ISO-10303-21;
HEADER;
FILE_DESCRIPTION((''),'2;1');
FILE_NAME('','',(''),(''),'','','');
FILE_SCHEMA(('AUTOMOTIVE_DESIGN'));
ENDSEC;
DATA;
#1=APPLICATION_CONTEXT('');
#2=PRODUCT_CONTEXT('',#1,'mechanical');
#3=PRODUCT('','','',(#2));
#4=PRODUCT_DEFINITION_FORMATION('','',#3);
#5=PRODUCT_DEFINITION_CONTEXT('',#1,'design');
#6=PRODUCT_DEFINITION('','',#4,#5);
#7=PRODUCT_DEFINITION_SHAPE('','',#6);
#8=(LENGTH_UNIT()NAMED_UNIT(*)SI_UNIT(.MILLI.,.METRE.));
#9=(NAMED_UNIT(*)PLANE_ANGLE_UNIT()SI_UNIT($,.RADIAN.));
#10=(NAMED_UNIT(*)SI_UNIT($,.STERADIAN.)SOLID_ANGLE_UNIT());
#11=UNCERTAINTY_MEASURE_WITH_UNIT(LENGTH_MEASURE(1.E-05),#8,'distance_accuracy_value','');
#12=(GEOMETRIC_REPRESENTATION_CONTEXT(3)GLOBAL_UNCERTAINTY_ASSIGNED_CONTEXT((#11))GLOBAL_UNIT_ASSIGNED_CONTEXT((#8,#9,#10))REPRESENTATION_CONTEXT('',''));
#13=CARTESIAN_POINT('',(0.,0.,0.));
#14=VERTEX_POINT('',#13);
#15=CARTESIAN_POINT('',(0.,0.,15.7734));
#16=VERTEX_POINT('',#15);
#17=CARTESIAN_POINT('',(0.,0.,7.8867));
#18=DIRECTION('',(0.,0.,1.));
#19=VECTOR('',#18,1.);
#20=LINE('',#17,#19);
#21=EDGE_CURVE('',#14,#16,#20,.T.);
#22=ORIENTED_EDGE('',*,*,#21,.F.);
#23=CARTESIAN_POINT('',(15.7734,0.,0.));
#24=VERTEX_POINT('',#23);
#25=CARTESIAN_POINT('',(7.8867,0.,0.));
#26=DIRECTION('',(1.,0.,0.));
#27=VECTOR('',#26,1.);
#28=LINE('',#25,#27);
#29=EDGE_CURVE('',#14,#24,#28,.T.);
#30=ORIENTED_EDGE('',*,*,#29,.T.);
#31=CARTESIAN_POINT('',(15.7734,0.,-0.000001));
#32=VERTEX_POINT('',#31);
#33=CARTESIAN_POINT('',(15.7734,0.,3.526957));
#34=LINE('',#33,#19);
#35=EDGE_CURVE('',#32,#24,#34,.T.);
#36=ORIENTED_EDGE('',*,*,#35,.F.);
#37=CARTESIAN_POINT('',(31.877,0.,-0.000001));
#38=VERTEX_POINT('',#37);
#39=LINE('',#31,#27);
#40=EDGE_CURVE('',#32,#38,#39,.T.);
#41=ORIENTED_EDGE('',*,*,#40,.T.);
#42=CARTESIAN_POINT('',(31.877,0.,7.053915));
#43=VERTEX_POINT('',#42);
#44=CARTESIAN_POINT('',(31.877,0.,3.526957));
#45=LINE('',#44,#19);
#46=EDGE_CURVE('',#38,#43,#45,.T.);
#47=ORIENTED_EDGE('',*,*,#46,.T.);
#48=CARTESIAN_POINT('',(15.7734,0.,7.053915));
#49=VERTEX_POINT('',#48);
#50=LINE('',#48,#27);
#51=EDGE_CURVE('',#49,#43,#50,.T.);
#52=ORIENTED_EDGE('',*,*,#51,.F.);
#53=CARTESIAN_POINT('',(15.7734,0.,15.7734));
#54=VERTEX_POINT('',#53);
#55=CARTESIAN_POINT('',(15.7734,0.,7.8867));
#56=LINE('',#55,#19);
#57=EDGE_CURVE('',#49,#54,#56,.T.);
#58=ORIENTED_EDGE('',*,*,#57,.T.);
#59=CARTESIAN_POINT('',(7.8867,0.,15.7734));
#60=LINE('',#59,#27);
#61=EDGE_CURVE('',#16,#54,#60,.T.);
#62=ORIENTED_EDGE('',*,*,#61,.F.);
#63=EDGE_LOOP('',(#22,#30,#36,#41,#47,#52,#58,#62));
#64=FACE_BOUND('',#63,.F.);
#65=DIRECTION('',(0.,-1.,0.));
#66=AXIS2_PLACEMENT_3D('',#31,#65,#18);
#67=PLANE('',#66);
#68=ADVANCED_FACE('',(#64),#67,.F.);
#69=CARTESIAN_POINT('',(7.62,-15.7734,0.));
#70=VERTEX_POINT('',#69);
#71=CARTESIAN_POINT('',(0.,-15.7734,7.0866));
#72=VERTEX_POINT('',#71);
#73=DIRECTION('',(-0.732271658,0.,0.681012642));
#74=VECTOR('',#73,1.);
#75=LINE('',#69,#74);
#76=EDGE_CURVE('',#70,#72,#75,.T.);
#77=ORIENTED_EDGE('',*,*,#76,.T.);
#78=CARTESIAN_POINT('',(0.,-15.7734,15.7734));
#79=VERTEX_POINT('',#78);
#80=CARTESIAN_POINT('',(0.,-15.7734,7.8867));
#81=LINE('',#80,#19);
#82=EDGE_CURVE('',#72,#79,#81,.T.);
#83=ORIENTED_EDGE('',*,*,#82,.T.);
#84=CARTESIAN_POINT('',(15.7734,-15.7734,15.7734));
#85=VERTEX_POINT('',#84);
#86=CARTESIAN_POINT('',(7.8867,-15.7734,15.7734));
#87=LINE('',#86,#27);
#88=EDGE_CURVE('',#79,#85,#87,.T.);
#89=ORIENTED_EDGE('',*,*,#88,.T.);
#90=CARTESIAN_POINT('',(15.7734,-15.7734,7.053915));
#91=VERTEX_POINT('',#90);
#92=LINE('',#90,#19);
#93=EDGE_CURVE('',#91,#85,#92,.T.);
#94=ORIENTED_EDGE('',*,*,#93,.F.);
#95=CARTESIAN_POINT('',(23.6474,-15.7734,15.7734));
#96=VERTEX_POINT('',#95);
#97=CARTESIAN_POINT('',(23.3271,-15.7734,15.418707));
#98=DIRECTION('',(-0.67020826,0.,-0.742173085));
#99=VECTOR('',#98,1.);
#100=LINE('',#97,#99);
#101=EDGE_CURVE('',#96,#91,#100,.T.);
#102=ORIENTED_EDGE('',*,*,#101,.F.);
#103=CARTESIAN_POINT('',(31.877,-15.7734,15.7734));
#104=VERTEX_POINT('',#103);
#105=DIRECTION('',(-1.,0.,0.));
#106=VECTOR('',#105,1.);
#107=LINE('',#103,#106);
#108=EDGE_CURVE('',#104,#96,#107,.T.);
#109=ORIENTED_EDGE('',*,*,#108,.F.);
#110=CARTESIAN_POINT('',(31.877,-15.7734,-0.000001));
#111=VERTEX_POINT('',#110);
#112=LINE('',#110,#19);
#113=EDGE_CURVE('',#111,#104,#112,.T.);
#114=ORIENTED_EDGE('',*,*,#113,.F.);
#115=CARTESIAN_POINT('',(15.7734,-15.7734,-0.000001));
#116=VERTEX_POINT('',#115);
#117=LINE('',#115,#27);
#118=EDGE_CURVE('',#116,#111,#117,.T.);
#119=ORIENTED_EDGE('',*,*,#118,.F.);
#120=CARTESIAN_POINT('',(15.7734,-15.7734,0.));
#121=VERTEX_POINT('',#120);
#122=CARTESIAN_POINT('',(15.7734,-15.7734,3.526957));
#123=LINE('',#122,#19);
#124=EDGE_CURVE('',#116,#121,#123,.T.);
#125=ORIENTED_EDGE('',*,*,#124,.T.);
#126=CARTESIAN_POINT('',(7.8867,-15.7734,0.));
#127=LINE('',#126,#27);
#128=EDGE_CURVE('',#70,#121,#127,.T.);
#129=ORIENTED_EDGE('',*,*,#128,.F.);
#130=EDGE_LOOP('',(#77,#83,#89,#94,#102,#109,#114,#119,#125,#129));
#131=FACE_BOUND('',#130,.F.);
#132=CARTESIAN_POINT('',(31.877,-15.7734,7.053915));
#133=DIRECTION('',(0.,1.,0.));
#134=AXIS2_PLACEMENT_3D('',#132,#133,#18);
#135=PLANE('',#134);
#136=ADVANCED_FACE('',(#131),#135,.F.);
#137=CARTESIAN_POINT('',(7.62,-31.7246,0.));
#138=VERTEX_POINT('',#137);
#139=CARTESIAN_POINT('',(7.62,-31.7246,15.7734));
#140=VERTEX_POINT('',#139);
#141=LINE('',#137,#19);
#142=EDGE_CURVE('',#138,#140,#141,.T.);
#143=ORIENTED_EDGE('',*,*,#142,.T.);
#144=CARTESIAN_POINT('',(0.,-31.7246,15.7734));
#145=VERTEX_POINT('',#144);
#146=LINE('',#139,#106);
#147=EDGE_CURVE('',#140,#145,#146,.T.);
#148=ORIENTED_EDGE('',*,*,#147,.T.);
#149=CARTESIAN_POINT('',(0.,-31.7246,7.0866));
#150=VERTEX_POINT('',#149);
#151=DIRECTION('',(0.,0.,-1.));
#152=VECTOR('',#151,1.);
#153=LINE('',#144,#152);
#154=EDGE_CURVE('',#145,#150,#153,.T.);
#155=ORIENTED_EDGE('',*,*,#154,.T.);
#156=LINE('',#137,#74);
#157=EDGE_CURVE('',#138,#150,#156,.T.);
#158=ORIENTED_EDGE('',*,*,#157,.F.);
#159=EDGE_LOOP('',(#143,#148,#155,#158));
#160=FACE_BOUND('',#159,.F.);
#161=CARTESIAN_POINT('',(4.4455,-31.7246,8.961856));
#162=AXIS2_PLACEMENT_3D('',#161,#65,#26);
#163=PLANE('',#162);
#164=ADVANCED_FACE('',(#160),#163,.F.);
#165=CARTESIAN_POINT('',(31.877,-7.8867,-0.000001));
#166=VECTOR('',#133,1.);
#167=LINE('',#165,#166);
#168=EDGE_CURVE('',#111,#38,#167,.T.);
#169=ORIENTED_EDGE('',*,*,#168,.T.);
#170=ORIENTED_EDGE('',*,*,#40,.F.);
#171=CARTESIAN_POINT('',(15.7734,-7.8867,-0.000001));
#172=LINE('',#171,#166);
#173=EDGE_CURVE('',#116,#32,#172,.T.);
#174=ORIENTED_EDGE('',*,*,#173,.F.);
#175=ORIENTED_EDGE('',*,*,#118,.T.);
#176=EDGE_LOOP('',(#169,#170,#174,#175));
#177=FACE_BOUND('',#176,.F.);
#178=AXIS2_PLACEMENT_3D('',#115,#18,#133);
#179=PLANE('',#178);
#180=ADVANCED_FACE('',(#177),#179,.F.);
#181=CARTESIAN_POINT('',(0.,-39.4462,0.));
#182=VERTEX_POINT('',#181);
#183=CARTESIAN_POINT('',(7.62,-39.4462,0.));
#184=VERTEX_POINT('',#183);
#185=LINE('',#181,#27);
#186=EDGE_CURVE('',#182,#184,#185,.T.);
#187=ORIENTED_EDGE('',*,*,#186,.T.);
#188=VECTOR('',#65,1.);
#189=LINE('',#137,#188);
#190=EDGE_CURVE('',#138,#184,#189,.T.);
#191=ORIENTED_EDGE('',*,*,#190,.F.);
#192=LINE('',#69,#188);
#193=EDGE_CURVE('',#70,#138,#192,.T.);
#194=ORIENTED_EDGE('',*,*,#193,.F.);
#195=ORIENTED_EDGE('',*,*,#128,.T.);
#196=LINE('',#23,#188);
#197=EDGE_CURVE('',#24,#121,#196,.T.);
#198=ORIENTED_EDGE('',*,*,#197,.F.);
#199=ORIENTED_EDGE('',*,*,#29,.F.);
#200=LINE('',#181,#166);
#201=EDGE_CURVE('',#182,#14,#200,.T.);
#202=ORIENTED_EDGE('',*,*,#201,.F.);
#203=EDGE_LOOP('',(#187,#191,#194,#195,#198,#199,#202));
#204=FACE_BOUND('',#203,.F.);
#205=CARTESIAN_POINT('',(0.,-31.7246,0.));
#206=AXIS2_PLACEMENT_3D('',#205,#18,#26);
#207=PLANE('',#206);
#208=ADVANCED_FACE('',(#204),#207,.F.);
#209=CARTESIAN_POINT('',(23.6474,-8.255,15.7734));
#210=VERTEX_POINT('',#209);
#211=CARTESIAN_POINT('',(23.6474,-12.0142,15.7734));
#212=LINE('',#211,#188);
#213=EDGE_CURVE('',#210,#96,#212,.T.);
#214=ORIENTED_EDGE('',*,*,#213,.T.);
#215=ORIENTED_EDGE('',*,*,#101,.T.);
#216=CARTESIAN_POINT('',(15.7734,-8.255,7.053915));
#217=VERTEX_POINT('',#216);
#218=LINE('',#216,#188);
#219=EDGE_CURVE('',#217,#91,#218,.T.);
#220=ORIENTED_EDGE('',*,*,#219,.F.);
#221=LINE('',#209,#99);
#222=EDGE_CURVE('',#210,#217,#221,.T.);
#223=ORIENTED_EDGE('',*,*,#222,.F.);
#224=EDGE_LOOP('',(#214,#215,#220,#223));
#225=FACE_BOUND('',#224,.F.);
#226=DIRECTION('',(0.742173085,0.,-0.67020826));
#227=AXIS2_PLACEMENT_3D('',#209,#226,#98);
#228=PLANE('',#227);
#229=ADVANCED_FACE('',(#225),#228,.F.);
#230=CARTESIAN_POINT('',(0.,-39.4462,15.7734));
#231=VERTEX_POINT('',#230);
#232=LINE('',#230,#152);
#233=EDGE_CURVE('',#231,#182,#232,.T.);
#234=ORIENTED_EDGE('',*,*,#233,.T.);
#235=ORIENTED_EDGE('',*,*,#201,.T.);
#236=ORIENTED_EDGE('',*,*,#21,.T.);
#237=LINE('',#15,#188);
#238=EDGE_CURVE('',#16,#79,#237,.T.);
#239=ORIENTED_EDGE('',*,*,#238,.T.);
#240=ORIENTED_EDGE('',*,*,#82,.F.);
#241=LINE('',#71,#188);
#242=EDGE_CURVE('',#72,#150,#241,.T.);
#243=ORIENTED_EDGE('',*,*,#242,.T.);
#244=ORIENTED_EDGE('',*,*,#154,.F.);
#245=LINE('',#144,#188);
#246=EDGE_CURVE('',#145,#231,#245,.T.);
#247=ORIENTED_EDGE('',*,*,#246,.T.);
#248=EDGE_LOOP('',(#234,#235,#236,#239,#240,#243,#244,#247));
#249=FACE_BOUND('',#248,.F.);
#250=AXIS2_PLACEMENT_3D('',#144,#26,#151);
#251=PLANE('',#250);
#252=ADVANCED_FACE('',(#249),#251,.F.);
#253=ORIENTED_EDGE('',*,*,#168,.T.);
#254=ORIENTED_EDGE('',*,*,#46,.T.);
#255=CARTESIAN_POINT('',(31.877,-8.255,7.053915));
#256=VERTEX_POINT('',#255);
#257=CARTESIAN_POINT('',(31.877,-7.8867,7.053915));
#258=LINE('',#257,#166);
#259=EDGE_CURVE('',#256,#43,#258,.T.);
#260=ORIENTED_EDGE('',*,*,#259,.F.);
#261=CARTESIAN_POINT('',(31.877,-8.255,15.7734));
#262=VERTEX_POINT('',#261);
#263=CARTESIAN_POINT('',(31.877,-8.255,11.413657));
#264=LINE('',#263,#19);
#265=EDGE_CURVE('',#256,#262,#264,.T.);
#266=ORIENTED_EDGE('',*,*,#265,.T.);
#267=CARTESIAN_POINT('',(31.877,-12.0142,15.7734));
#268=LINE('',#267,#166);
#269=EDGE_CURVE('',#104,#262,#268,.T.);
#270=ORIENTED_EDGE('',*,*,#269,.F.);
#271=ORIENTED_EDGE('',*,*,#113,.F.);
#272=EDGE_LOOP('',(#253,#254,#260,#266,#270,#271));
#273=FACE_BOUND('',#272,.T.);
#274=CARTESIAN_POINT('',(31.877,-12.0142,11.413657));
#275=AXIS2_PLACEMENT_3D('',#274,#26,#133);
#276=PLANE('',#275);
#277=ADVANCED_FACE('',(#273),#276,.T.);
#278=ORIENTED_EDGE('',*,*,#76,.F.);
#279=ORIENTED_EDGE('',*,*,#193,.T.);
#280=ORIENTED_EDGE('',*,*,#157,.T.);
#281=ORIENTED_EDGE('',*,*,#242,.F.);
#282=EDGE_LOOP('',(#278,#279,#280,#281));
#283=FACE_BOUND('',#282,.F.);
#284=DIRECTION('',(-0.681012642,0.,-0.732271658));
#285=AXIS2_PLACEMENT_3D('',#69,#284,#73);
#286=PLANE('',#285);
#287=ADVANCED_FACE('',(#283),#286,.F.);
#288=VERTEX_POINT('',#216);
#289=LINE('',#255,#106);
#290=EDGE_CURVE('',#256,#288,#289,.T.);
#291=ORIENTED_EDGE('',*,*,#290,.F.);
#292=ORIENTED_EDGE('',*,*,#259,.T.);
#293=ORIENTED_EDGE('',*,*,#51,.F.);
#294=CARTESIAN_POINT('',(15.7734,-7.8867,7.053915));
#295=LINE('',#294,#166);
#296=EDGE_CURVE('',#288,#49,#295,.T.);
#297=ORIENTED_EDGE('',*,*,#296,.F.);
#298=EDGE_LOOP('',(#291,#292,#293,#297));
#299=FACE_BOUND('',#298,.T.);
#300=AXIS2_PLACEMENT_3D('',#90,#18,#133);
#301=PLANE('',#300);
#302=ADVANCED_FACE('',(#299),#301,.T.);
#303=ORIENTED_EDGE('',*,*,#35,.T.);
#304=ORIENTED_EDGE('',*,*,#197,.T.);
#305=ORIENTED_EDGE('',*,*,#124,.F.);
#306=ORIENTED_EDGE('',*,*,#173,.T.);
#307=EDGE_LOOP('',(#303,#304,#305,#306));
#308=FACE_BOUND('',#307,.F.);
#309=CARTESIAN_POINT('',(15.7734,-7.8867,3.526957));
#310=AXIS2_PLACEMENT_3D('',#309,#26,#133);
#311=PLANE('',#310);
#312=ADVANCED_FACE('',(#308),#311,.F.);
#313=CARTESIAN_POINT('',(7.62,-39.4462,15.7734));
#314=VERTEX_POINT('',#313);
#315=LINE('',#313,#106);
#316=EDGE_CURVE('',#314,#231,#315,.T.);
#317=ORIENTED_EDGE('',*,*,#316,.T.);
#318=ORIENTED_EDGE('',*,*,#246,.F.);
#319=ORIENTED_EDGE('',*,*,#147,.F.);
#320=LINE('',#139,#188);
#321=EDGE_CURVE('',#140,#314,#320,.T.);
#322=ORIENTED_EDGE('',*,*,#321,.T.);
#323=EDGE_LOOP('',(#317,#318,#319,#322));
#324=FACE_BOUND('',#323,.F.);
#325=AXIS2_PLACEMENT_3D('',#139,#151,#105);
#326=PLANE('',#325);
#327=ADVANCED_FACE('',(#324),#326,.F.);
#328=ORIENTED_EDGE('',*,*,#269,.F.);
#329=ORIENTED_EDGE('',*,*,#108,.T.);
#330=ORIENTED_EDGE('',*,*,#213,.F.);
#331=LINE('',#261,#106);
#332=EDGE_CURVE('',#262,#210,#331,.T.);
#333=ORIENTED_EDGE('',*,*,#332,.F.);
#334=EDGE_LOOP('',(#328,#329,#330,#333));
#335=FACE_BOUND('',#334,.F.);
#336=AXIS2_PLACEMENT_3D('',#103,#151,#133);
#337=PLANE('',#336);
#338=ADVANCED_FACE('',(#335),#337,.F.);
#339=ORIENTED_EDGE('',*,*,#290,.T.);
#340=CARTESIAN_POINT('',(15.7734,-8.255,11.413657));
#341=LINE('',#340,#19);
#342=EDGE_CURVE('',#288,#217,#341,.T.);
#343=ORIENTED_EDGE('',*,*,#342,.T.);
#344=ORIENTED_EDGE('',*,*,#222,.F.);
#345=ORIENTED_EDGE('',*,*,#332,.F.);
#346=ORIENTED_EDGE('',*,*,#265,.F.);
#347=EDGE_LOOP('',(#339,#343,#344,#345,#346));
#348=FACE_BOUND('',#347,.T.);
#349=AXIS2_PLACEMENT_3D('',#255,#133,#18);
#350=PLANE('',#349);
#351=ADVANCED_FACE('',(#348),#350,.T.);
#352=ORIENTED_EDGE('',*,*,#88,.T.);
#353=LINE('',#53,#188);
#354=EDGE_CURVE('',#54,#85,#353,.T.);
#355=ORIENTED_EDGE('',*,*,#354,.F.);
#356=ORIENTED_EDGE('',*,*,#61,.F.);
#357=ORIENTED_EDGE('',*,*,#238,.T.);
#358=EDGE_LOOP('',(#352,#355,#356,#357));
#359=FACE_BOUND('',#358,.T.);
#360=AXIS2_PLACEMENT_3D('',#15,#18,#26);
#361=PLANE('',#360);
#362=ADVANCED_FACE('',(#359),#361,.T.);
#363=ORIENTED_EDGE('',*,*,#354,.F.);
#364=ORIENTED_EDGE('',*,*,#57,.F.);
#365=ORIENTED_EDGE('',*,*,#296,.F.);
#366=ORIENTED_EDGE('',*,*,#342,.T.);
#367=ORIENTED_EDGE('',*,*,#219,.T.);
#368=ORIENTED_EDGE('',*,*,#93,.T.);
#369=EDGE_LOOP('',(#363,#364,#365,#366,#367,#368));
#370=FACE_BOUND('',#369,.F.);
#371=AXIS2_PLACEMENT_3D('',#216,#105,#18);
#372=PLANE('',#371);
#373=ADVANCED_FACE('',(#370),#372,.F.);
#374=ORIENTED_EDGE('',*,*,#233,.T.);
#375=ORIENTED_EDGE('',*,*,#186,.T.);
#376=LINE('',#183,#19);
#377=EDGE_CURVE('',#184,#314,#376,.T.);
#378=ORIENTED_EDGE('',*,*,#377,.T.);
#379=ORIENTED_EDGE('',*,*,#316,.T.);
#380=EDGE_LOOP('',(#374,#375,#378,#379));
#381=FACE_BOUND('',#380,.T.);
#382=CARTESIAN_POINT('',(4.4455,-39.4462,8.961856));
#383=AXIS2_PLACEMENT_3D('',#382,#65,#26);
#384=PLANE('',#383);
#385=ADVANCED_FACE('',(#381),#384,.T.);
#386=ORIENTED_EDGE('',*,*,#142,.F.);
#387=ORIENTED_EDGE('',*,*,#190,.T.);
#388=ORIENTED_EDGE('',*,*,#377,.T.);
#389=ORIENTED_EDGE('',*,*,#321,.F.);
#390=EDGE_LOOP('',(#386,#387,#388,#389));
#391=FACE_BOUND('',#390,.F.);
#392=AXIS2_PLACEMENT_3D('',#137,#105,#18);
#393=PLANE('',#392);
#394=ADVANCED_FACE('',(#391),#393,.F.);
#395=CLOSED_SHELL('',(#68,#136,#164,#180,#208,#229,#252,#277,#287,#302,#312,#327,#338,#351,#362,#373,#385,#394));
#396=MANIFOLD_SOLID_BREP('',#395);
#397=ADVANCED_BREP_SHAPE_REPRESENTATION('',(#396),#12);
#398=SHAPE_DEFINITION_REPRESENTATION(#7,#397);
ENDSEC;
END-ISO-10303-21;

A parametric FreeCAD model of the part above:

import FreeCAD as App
import Part
import Sketcher
from FreeCAD import Vector
Q = App.Units.Quantity

doc = App.newDocument("Part")
body = doc.addObject("PartDesign::Body", "Body")

# Sketch on XZ plane
sketch1 = body.newObject("Sketcher::SketchObject", "Sketch")
sketch1.AttachmentSupport = (doc.getObject("XZ_Plane"), [""])
sketch1.MapMode = "FlatFace"
sketch1.addGeometry([
    Part.LineSegment(Vector(0, 15.7734, 0), Vector(0, 0, 0)),
    Part.LineSegment(Vector(0, 0, 0), Vector(15.7734, 0, 0)),
    Part.LineSegment(Vector(15.7734, 0, 0), Vector(15.7734, 15.7734, 0)),
    Part.LineSegment(Vector(15.7734, 15.7734, 0), Vector(0, 15.7734, 0)),
], False)
sketch1.addConstraint([
    Sketcher.Constraint("Coincident", 0, 2, 1, 1),
    Sketcher.Constraint("Coincident", 1, 2, 2, 1),
    Sketcher.Constraint("Coincident", 2, 2, 3, 1),
    Sketcher.Constraint("Coincident", 3, 2, 0, 1),
    Sketcher.Constraint("Vertical", 0),
    Sketcher.Constraint("Horizontal", 1),
    Sketcher.Constraint("Vertical", 2),
    Sketcher.Constraint("Horizontal", 3),
    Sketcher.Constraint("Coincident", 0, 2, -1, 1),
    Sketcher.Constraint("Equal", 3, 0),
    Sketcher.Constraint("DistanceX", 1, 1, 1, 2, Q("0.621 in")),
])
pad1 = body.newObject("PartDesign::Pad", "Pad")
pad1.Profile = sketch1
pad1.Length = Q("0.621 in")

# Sketch on XZ plane
sketch2 = body.newObject("Sketcher::SketchObject", "Sketch001")
sketch2.AttachmentSupport = (doc.getObject("XZ_Plane"), [""])
sketch2.MapMode = "FlatFace"
sketch2.AttachmentOffset = App.Placement(Vector(0, 0, 0.621 * 25.4), App.Rotation())
sketch2.addGeometry([
    Part.LineSegment(Vector(0, 7.0866, 0), Vector(0, 0, 0)),
    Part.LineSegment(Vector(0, 0, 0), Vector(7.62, 0, 0)),
    Part.LineSegment(Vector(7.62, 0, 0), Vector(0, 7.0866, 0)),
], False)
sketch2.addConstraint([
    Sketcher.Constraint("Coincident", 0, 2, 1, 1),
    Sketcher.Constraint("Coincident", 1, 2, 2, 1),
    Sketcher.Constraint("Coincident", 2, 2, 0, 1),
    Sketcher.Constraint("Vertical", 0),
    Sketcher.Constraint("Horizontal", 1),
    Sketcher.Constraint("Coincident", 0, 2, -1, 1),
    Sketcher.Constraint("DistanceX", 1, 1, 1, 2, Q("0.3 in")),
    Sketcher.Constraint("DistanceY", 0, 2, 0, 1, Q("0.279 in")),
])
pad2 = body.newObject("PartDesign::Pad", "Pad001")
pad2.Profile = sketch2
pad2.Length = Q("0.628 in")

# Sketch on XZ plane
sketch3 = body.newObject("Sketcher::SketchObject", "Sketch002")
sketch3.AttachmentSupport = (doc.getObject("XZ_Plane"), [""])
sketch3.MapMode = "FlatFace"
sketch3.AttachmentOffset = App.Placement(Vector(0, 0, 1.249 * 25.4), App.Rotation())
sketch3.addGeometry([
    Part.LineSegment(Vector(7.62, 0, 0), Vector(7.62, 15.7734, 0)),
    Part.LineSegment(Vector(7.62, 15.7734, 0), Vector(0, 15.7734, 0)),
    Part.LineSegment(Vector(0, 15.7734, 0), Vector(0, 0, 0)),
    Part.LineSegment(Vector(0, 0, 0), Vector(7.62, 0, 0)),
], False)
sketch3.addConstraint([
    Sketcher.Constraint("Coincident", 0, 2, 1, 1),
    Sketcher.Constraint("Coincident", 1, 2, 2, 1),
    Sketcher.Constraint("Coincident", 2, 2, 3, 1),
    Sketcher.Constraint("Coincident", 3, 2, 0, 1),
    Sketcher.Constraint("Vertical", 0),
    Sketcher.Constraint("Horizontal", 1),
    Sketcher.Constraint("Vertical", 2),
    Sketcher.Constraint("Horizontal", 3),
    Sketcher.Constraint("Coincident", 2, 2, -1, 1),
    Sketcher.Constraint("DistanceX", 1, 2, 1, 1, Q("0.3 in")),
    Sketcher.Constraint("DistanceY", 0, 1, 0, 2, Q("0.621 in")),
])
pad3 = body.newObject("PartDesign::Pad", "Pad002")
pad3.Profile = sketch3
pad3.Length = Q("0.304 in")

# Sketch on YZ plane
sketch4 = body.newObject("Sketcher::SketchObject", "Sketch003")
sketch4.AttachmentSupport = (doc.getObject("YZ_Plane"), [""])
sketch4.MapMode = "FlatFace"
sketch4.AttachmentOffset = App.Placement(Vector(0, 0, 0.621 * 25.4), App.Rotation())
sketch4.addGeometry([
    Part.LineSegment(Vector(-15.7734, 7.053915, 0), Vector(-15.7734, 0, 0)),
    Part.LineSegment(Vector(-15.7734, 0, 0), Vector(0, 0, 0)),
    Part.LineSegment(Vector(0, 0, 0), Vector(0, 7.053915, 0)),
    Part.LineSegment(Vector(0, 7.053915, 0), Vector(-15.7734, 7.053915, 0)),
], False)
sketch4.addConstraint([
    Sketcher.Constraint("Coincident", 0, 2, 1, 1),
    Sketcher.Constraint("Coincident", 1, 2, 2, 1),
    Sketcher.Constraint("Coincident", 2, 2, 3, 1),
    Sketcher.Constraint("Coincident", 3, 2, 0, 1),
    Sketcher.Constraint("Vertical", 0),
    Sketcher.Constraint("Horizontal", 1),
    Sketcher.Constraint("Vertical", 2),
    Sketcher.Constraint("Horizontal", 3),
    Sketcher.Constraint("Coincident", 1, 2, -1, 1),
    Sketcher.Constraint("DistanceX", 1, 1, 1, 2, Q("0.621 in")),
    Sketcher.Constraint("DistanceY", 0, 2, 0, 1, Q("7.053915 mm")),
])
pad4 = body.newObject("PartDesign::Pad", "Pad003")
pad4.Profile = sketch4
pad4.Length = Q("0.634 in")

# Sketch on YZ plane
sketch5 = body.newObject("Sketcher::SketchObject", "Sketch004")
sketch5.AttachmentSupport = (doc.getObject("YZ_Plane"), [""])
sketch5.MapMode = "FlatFace"
sketch5.AttachmentOffset = App.Placement(Vector(0, 0, 1.255 * 25.4), App.Rotation())
sketch5.addGeometry([
    Part.LineSegment(Vector(-15.7734, 15.7734, 0), Vector(-15.7734, 7.053915, 0)),
    Part.LineSegment(Vector(-15.7734, 7.053915, 0), Vector(-8.255, 7.053915, 0)),
    Part.LineSegment(Vector(-8.255, 7.053915, 0), Vector(-8.255, 15.7734, 0)),
    Part.LineSegment(Vector(-8.255, 15.7734, 0), Vector(-15.7734, 15.7734, 0)),
], False)
sketch5.addConstraint([
    Sketcher.Constraint("Coincident", 0, 2, 1, 1),
    Sketcher.Constraint("Coincident", 1, 2, 2, 1),
    Sketcher.Constraint("Coincident", 2, 2, 3, 1),
    Sketcher.Constraint("Coincident", 3, 2, 0, 1),
    Sketcher.Constraint("Vertical", 0),
    Sketcher.Constraint("Horizontal", 1),
    Sketcher.Constraint("Vertical", 2),
    Sketcher.Constraint("Horizontal", 3),
    Sketcher.Constraint("DistanceX", 1, 1, 1, 2, Q("0.296 in")),
    Sketcher.Constraint("DistanceX", 0, 2, -1, 1, Q("0.621 in")),
    Sketcher.Constraint("DistanceY", -1, 1, 2, 2, Q("0.621 in")),
    Sketcher.Constraint("DistanceY", 0, 2, 0, 1, Q("8.719485 mm")),
])
pad5 = body.newObject("PartDesign::Pad", "Pad004")
pad5.Profile = sketch5
pad5.Type = "UpToLast"
pad5.Reversed = True

# Sketch on XZ plane
sketch6 = body.newObject("Sketcher::SketchObject", "Sketch005")
sketch6.AttachmentSupport = (doc.getObject("XZ_Plane"), [""])
sketch6.MapMode = "FlatFace"
sketch6.AttachmentOffset = App.Placement(Vector(0, 0, 0.325 * 25.4), App.Rotation())
sketch6.addGeometry([
    Part.LineSegment(Vector(23.6474, 15.7734, 0), Vector(15.7734, 7.053915, 0)),
    Part.LineSegment(Vector(15.7734, 7.053915, 0), Vector(15.7734, 15.7734, 0)),
    Part.LineSegment(Vector(15.7734, 15.7734, 0), Vector(23.6474, 15.7734, 0)),
], False)
sketch6.addConstraint([
    Sketcher.Constraint("Coincident", 0, 2, 1, 1),
    Sketcher.Constraint("Coincident", 1, 2, 2, 1),
    Sketcher.Constraint("Coincident", 2, 2, 0, 1),
    Sketcher.Constraint("Vertical", 1),
    Sketcher.Constraint("Horizontal", 2),
    Sketcher.Constraint("DistanceX", 2, 1, 2, 2, Q("0.31 in")),
    Sketcher.Constraint("DistanceX", -1, 1, 0, 2, Q("0.621 in")),
    Sketcher.Constraint("DistanceY", -1, 1, 1, 2, Q("0.621 in")),
    Sketcher.Constraint("DistanceY", 1, 1, 1, 2, Q("8.719485 mm")),
])
pocket1 = body.newObject("PartDesign::Pocket", "Pocket")
pocket1.Profile = sketch6
pocket1.Length = Q("1 in")
pocket1.Reversed = True

doc.recompute()
